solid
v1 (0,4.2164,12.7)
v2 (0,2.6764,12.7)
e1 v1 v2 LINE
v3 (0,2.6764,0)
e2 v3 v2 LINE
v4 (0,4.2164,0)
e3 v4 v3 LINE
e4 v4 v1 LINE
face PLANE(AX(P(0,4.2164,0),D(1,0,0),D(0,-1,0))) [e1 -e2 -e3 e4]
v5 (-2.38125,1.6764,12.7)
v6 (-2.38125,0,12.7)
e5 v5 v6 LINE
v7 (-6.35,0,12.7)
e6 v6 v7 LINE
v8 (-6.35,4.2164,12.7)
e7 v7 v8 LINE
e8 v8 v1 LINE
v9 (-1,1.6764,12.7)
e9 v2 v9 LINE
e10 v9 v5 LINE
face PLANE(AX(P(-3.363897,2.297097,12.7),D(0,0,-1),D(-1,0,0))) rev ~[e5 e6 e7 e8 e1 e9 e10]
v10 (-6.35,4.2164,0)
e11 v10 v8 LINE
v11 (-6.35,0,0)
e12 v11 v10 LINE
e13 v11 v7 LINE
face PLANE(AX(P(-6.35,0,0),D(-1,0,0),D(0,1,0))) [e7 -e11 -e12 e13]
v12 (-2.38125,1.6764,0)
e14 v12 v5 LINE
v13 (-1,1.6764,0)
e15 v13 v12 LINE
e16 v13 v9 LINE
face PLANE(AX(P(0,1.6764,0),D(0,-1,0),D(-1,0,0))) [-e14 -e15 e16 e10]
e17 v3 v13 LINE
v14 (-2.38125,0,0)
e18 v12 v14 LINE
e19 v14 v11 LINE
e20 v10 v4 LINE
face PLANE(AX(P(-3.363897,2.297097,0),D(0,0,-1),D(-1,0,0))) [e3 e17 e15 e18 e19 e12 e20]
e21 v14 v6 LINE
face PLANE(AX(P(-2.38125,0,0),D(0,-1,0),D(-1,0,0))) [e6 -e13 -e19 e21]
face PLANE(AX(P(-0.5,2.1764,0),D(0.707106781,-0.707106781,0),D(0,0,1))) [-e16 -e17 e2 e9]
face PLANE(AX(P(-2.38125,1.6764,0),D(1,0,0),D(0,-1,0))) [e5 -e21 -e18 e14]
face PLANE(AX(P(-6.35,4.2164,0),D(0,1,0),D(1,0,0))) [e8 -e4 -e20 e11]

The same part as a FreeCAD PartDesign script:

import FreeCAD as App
import Part
import Sketcher
from FreeCAD import Vector
Q = App.Units.Quantity


def edges_at(feature, points):
    """Names of the edges that pass closest to the given points."""
    edges = feature.Shape.Edges
    near = lambda p: min(range(len(edges)), key=lambda i: edges[i].distToShape(Part.Vertex(*p))[0])
    return sorted({f"Edge{near(p) + 1}" for p in points})


def add_polygon(sketch, points):
    """Adds a closed chain of lines whose ends are joined by coincident constraints."""
    first, n = sketch.GeometryCount, len(points)
    for a, b in zip(points, points[1:] + points[:1]):
        sketch.addGeometry(Part.LineSegment(App.Vector(*a, 0), App.Vector(*b, 0)), False)
    for i in range(n):
        sketch.addConstraint(Sketcher.Constraint("Coincident", first + i, 2, first + (i + 1) % n, 1))

doc = App.newDocument("Part")
body = doc.addObject("PartDesign::Body", "Body")

sketch1 = body.newObject("Sketcher::SketchObject", "Sketch")
sketch1.AttachmentSupport = (doc.getObject("XY_Plane"), [""])
sketch1.MapMode = "FlatFace"
add_polygon(sketch1, [(-6.3, 4.2), (-6.3, 0), (-2.4, 0), (-2.4, 1.7), (0, 1.7), (0, 4.2)])
sketch1.addConstraint(Sketcher.Constraint("Vertical", 0))
sketch1.addConstraint(Sketcher.Constraint("Horizontal", 1))
sketch1.addConstraint(Sketcher.Constraint("Vertical", 2))
sketch1.addConstraint(Sketcher.Constraint("Horizontal", 3))
sketch1.addConstraint(Sketcher.Constraint("Vertical", 4))
sketch1.addConstraint(Sketcher.Constraint("Horizontal", 5))
sketch1.addConstraint(Sketcher.Constraint("PointOnObject", 0, 2, -1))
sketch1.addConstraint(Sketcher.Constraint("PointOnObject", 3, 2, -2))
sketch1.addConstraint(Sketcher.Constraint("DistanceY", 4, 1, 4, 2, Q("0.1 in")))
sketch1.addConstraint(Sketcher.Constraint("DistanceX", 5, 2, 5, 1, Q("0.25 in")))
sketch1.addConstraint(Sketcher.Constraint("DistanceX", 1, 1, 1, 2, Q("0.15625 in")))
sketch1.addConstraint(Sketcher.Constraint("DistanceY", 0, 2, 0, 1, Q("0.166 in")))
pad1 = body.newObject("PartDesign::Pad", "Pad")
pad1.Profile = sketch1
pad1.Length = Q("0.5 in")
doc.recompute()

chamfer = body.newObject("PartDesign::Chamfer", "Chamfer")
chamfer.Base = (pad1, edges_at(pad1, [(0, 1.676, 6.35)]))
chamfer.Size = 1

doc.recompute()
